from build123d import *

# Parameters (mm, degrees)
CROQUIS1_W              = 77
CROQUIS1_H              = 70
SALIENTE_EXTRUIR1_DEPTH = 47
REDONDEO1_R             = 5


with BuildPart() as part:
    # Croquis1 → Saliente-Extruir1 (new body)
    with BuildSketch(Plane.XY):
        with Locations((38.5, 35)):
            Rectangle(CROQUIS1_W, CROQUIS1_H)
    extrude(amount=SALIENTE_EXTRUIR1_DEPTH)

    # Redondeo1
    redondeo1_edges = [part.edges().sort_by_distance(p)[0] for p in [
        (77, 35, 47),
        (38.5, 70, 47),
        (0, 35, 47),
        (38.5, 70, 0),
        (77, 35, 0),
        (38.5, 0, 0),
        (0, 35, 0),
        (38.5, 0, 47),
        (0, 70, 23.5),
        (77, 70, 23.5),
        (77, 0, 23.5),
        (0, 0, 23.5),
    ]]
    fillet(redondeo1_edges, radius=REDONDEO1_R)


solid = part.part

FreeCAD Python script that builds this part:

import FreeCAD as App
import Part
import Sketcher

V = App.Vector

doc = App.newDocument("Part")
body = doc.addObject("PartDesign::Body", "Body")

sketch1 = doc.addObject("Sketcher::SketchObject", "Sketch")
body.addObject(sketch1)
sketch1.AttachmentSupport = (doc.XY_Plane, [""])
sketch1.MapMode = "FlatFace"
sketch1.addGeometry([
    Part.LineSegment(V(0, 70, 0), V(0, 0, 0)),
    Part.LineSegment(V(0, 0, 0), V(77, 0, 0)),
    Part.LineSegment(V(77, 0, 0), V(77, 70, 0)),
    Part.LineSegment(V(77, 70, 0), V(0, 70, 0)),
], False)
sketch1.addConstraint([
    Sketcher.Constraint("Coincident", 0, 2, 1, 1),
    Sketcher.Constraint("Coincident", 1, 2, 2, 1),
    Sketcher.Constraint("Coincident", 2, 2, 3, 1),
    Sketcher.Constraint("Coincident", 3, 2, 0, 1),
    Sketcher.Constraint("Vertical", 0),
    Sketcher.Constraint("Horizontal", 1),
    Sketcher.Constraint("Vertical", 2),
    Sketcher.Constraint("Horizontal", 3),
    Sketcher.Constraint("Coincident", 0, 2, -1, 1),
    Sketcher.Constraint("DistanceX", 1, 1, 1, 2, 77.0),
    Sketcher.Constraint("DistanceY", 0, 2, 0, 1, 70.0),
])
pad1 = doc.addObject("PartDesign::Pad", "Pad")
body.addObject(pad1)
pad1.Profile = sketch1
pad1.Length = 47
doc.recompute()

fillet = doc.addObject("PartDesign::Fillet", "Fillet")
body.addObject(fillet)
fillet.Base = (pad1, ["Edge1"])
fillet.UseAllEdges = True
fillet.Radius = 5

doc.recompute()
